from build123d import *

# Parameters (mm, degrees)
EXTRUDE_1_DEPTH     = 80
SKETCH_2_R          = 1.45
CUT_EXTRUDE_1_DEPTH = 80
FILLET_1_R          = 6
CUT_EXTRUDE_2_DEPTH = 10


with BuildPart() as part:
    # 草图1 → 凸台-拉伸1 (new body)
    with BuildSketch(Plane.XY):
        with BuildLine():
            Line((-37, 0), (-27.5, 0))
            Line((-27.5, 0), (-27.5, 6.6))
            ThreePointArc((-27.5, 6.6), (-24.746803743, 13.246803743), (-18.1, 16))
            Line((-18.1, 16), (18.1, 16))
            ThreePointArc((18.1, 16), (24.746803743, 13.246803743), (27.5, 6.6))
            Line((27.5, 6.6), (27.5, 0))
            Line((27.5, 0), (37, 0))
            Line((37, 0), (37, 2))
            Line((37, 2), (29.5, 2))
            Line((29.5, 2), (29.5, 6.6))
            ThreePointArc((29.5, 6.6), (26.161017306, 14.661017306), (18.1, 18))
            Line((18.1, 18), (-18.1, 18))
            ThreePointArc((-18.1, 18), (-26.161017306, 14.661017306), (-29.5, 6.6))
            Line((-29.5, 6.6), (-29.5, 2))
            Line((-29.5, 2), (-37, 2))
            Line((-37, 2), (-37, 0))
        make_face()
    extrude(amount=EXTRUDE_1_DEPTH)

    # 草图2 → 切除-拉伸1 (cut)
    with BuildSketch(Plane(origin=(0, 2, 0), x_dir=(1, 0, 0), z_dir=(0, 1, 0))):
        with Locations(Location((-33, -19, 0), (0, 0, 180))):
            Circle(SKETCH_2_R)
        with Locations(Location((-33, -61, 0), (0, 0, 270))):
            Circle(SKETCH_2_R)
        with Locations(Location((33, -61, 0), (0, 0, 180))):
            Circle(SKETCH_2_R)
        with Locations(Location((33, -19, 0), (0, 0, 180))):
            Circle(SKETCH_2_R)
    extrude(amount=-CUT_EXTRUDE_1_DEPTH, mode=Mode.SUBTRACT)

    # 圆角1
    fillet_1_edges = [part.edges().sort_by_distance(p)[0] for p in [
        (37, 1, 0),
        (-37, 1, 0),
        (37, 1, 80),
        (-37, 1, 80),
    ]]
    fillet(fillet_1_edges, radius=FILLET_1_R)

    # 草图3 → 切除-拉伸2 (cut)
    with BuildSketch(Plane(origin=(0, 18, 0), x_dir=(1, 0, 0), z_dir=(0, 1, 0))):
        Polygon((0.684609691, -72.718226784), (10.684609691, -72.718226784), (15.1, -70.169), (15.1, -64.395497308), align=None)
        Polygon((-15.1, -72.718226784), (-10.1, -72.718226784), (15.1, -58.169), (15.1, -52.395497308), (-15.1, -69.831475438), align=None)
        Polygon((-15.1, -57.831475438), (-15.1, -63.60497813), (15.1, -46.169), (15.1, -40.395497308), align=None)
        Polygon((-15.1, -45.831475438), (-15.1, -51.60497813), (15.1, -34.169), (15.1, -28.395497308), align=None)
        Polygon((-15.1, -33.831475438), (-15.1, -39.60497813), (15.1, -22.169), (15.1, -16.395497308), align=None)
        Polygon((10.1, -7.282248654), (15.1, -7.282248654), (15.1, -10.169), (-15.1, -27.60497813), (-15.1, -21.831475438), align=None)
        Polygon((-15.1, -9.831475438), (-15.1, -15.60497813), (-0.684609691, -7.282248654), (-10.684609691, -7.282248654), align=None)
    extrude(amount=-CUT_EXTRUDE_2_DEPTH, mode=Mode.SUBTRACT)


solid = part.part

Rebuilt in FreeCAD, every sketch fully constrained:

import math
import FreeCAD as App
import Part
import Sketcher
Q = App.Units.Quantity


def edges_at(feature, points):
    """Names of the edges that pass closest to the given points."""
    edges = feature.Shape.Edges
    near = lambda p: min(range(len(edges)), key=lambda i: edges[i].distToShape(Part.Vertex(*p))[0])
    return sorted({f"Edge{near(p) + 1}" for p in points})

doc = App.newDocument("Part")
params = doc.addObject("Spreadsheet::Sheet", "Params")
for row, (alias, value) in enumerate([
    ("sketch1_radius", "9.4 mm"),
    ("sketch1_radius2", "11.4 mm"),
    ("sketch1_height", "2 mm"),
    ("sketch1_width", "9.5 mm"),
    ("sketch1_width2", "36.2 mm"),
    ("pad1_length", "80 mm"),
    ("sketch2_diameter", "2.9 mm"),
    ("pocket1_length", "80 mm"),
    ("fillet_radius", "6 mm"),
    ("sketch3_width", "10 mm"),
    ("sketch3_width2", "5 mm"),
    ("pocket2_length", "10 mm"),
], start=1):
    params.set(f"A{row}", alias)
    params.set(f"B{row}", "=" + value)
    params.setAlias(f"B{row}", alias)

body = doc.addObject("PartDesign::Body", "Body")

sketch1 = body.newObject("Sketcher::SketchObject", "Sketch")
sketch1.AttachmentSupport = (doc.getObject("XY_Plane"), [""])
sketch1.MapMode = "FlatFace"
sketch1.addGeometry([
    Part.LineSegment(App.Vector(-37, 0, 0), App.Vector(-27.5, 0, 0)),
    Part.LineSegment(App.Vector(-27.5, 0, 0), App.Vector(-27.5, 6.6, 0)),
    Part.ArcOfCircle(Part.Circle(App.Vector(-18.1, 6.6, 0), App.Vector(0, 0, 1), 9.4), math.radians(90), math.radians(180)),
    Part.LineSegment(App.Vector(-18.1, 16, 0), App.Vector(18.1, 16, 0)),
    Part.ArcOfCircle(Part.Circle(App.Vector(18.1, 6.6, 0), App.Vector(0, 0, 1), 9.4), math.radians(0), math.radians(90)),
    Part.LineSegment(App.Vector(27.5, 6.6, 0), App.Vector(27.5, 0, 0)),
    Part.LineSegment(App.Vector(27.5, 0, 0), App.Vector(37, 0, 0)),
    Part.LineSegment(App.Vector(37, 0, 0), App.Vector(37, 2, 0)),
    Part.LineSegment(App.Vector(37, 2, 0), App.Vector(29.5, 2, 0)),
    Part.LineSegment(App.Vector(29.5, 2, 0), App.Vector(29.5, 6.6, 0)),
    Part.ArcOfCircle(Part.Circle(App.Vector(18.1, 6.6, 0), App.Vector(0, 0, 1), 11.4), math.radians(0), math.radians(90)),
    Part.LineSegment(App.Vector(18.1, 18, 0), App.Vector(-18.1, 18, 0)),
    Part.ArcOfCircle(Part.Circle(App.Vector(-18.1, 6.6, 0), App.Vector(0, 0, 1), 11.4), math.radians(90), math.radians(180)),
    Part.LineSegment(App.Vector(-29.5, 6.6, 0), App.Vector(-29.5, 2, 0)),
    Part.LineSegment(App.Vector(-29.5, 2, 0), App.Vector(-37, 2, 0)),
    Part.LineSegment(App.Vector(-37, 2, 0), App.Vector(-37, 0, 0)),
], False)
sketch1.addConstraint([
    Sketcher.Constraint("Coincident", 0, 2, 1, 1),
    Sketcher.Constraint("Tangent", 1, 2, 2, 2),
    Sketcher.Constraint("Tangent", 2, 1, 3, 1),
    Sketcher.Constraint("Tangent", 3, 2, 4, 2),
    Sketcher.Constraint("Tangent", 4, 1, 5, 1),
    Sketcher.Constraint("Coincident", 5, 2, 6, 1),
    Sketcher.Constraint("Coincident", 6, 2, 7, 1),
    Sketcher.Constraint("Coincident", 7, 2, 8, 1),
    Sketcher.Constraint("Coincident", 8, 2, 9, 1),
    Sketcher.Constraint("Tangent", 9, 2, 10, 1),
    Sketcher.Constraint("Tangent", 10, 2, 11, 1),
    Sketcher.Constraint("Tangent", 11, 2, 12, 1),
    Sketcher.Constraint("Tangent", 12, 2, 13, 1),
    Sketcher.Constraint("Coincident", 13, 2, 14, 1),
    Sketcher.Constraint("Coincident", 14, 2, 15, 1),
    Sketcher.Constraint("Coincident", 15, 2, 0, 1),
    Sketcher.Constraint("Horizontal", 0),
    Sketcher.Constraint("Vertical", 1),
    Sketcher.Constraint("Horizontal", 3),
    Sketcher.Constraint("Vertical", 5),
    Sketcher.Constraint("Horizontal", 6),
    Sketcher.Constraint("Vertical", 7),
    Sketcher.Constraint("Horizontal", 8),
    Sketcher.Constraint("Vertical", 9),
    Sketcher.Constraint("Horizontal", 11),
    Sketcher.Constraint("Vertical", 13),
    Sketcher.Constraint("Horizontal", 14),
    Sketcher.Constraint("Vertical", 15),
    Sketcher.Constraint("Coincident", 10, 3, 4, 3),
    Sketcher.Constraint("Coincident", 12, 3, 2, 3),
    Sketcher.Constraint("Equal", 2, 4),
    Sketcher.Constraint("Symmetric", 0, 2, 5, 2, -1, 1),
    Sketcher.Constraint("Symmetric", 7, 2, 14, 2, -2),
    Sketcher.Constraint("PointOnObject", 0, 2, -1),
    Sketcher.Constraint("Radius", 2, 9.4),
    Sketcher.Constraint("Radius", 10, 11.4),
    Sketcher.Constraint("DistanceY", 7, 1, 7, 2, 2.0),
    Sketcher.Constraint("DistanceX", 0, 1, 0, 2, 9.5),
    Sketcher.Constraint("DistanceX", 3, 1, 3, 2, 36.2),
    Sketcher.Constraint("DistanceY", 1, 1, 1, 2, 6.6),
])
sketch1.setExpression("Constraints[34]", "Params.sketch1_radius")
sketch1.setExpression("Constraints[35]", "Params.sketch1_radius2")
sketch1.setExpression("Constraints[36]", "Params.sketch1_height")
sketch1.setExpression("Constraints[37]", "Params.sketch1_width")
sketch1.setExpression("Constraints[38]", "Params.sketch1_width2")
pad1 = body.newObject("PartDesign::Pad", "Pad")
pad1.Profile = sketch1
pad1.setExpression("Length", "Params.pad1_length")

sketch2 = body.newObject("Sketcher::SketchObject", "Sketch001")
sketch2.AttachmentSupport = (doc.getObject("XZ_Plane"), [""])
sketch2.MapMode = "FlatFace"
sketch2.AttachmentOffset = App.Placement(App.Vector(0, 0, -2), App.Rotation())
sketch2.addGeometry([
    Part.Circle(App.Vector(-33, 19, 0), App.Vector(0, 0, 1), 1.4),
    Part.Circle(App.Vector(-33, 61, 0), App.Vector(0, 0, 1), 1.4),
    Part.Circle(App.Vector(33, 61, 0), App.Vector(0, 0, 1), 1.4),
    Part.Circle(App.Vector(33, 19, 0), App.Vector(0, 0, 1), 1.4),
], False)
sketch2.addConstraint([
    Sketcher.Constraint("Equal", 0, 1),
    Sketcher.Constraint("Equal", 1, 2),
    Sketcher.Constraint("Equal", 2, 3),
    Sketcher.Constraint("Symmetric", 1, 3, 2, 3, -2),
    Sketcher.Constraint("Symmetric", 0, 3, 3, 3, -2),
    Sketcher.Constraint("Vertical", 0, 3, 1, 3),
    Sketcher.Constraint("Diameter", 0, 2.9),
    Sketcher.Constraint("DistanceX", 0, 3, -1, 1, 33.0),
    Sketcher.Constraint("DistanceY", -1, 1, 0, 3, 19.0),
    Sketcher.Constraint("DistanceY", -1, 1, 1, 3, 61.0),
])
sketch2.setExpression("Constraints[6]", "Params.sketch2_diameter")
pocket1 = body.newObject("PartDesign::Pocket", "Pocket")
pocket1.Profile = sketch2
pocket1.setExpression("Length", "Params.pocket1_length")
pocket1.Reversed = True
doc.recompute()

fillet = body.newObject("PartDesign::Fillet", "Fillet")
fillet.Base = (pocket1, edges_at(pocket1, [
    (37, 1, 0),
    (-37, 1, 0),
    (37, 1, 80),
    (-37, 1, 80),
]))
fillet.setExpression("Radius", "Params.fillet_radius")

sketch3 = body.newObject("Sketcher::SketchObject", "Sketch002")
sketch3.AttachmentSupport = (doc.getObject("XZ_Plane"), [""])
sketch3.MapMode = "FlatFace"
sketch3.AttachmentOffset = App.Placement(App.Vector(0, 0, -18), App.Rotation())
sketch3.addGeometry([
    Part.LineSegment(App.Vector(0.7, 72.7, 0), App.Vector(10.7, 72.7, 0)),
    Part.LineSegment(App.Vector(10.7, 72.7, 0), App.Vector(15.1, 70.2, 0)),
    Part.LineSegment(App.Vector(15.1, 70.2, 0), App.Vector(15.1, 64.4, 0)),
    Part.LineSegment(App.Vector(15.1, 64.4, 0), App.Vector(0.7, 72.7, 0)),
    Part.LineSegment(App.Vector(-15.1, 72.7, 0), App.Vector(-10.1, 72.7, 0)),
    Part.LineSegment(App.Vector(-10.1, 72.7, 0), App.Vector(15.1, 58.2, 0)),
    Part.LineSegment(App.Vector(15.1, 58.2, 0), App.Vector(15.1, 52.4, 0)),
    Part.LineSegment(App.Vector(15.1, 52.4, 0), App.Vector(-15.1, 69.8, 0)),
    Part.LineSegment(App.Vector(-15.1, 69.8, 0), App.Vector(-15.1, 72.7, 0)),
    Part.LineSegment(App.Vector(-15.1, 57.8, 0), App.Vector(-15.1, 63.6, 0)),
    Part.LineSegment(App.Vector(-15.1, 63.6, 0), App.Vector(15.1, 46.2, 0)),
    Part.LineSegment(App.Vector(15.1, 46.2, 0), App.Vector(15.1, 40.4, 0)),
    Part.LineSegment(App.Vector(15.1, 40.4, 0), App.Vector(-15.1, 57.8, 0)),
    Part.LineSegment(App.Vector(-15.1, 45.8, 0), App.Vector(-15.1, 51.6, 0)),
    Part.LineSegment(App.Vector(-15.1, 51.6, 0), App.Vector(15.1, 34.2, 0)),
    Part.LineSegment(App.Vector(15.1, 34.2, 0), App.Vector(15.1, 28.4, 0)),
    Part.LineSegment(App.Vector(15.1, 28.4, 0), App.Vector(-15.1, 45.8, 0)),
    Part.LineSegment(App.Vector(-15.1, 33.8, 0), App.Vector(-15.1, 39.6, 0)),
    Part.LineSegment(App.Vector(-15.1, 39.6, 0), App.Vector(15.1, 22.2, 0)),
    Part.LineSegment(App.Vector(15.1, 22.2, 0), App.Vector(15.1, 16.4, 0)),
    Part.LineSegment(App.Vector(15.1, 16.4, 0), App.Vector(-15.1, 33.8, 0)),
    Part.LineSegment(App.Vector(15.1, 7.3, 0), App.Vector(10.1, 7.3, 0)),
    Part.LineSegment(App.Vector(10.1, 7.3, 0), App.Vector(-15.1, 21.8, 0)),
    Part.LineSegment(App.Vector(-15.1, 21.8, 0), App.Vector(-15.1, 27.6, 0)),
    Part.LineSegment(App.Vector(-15.1, 27.6, 0), App.Vector(15.1, 10.2, 0)),
    Part.LineSegment(App.Vector(15.1, 10.2, 0), App.Vector(15.1, 7.3, 0)),
    Part.LineSegment(App.Vector(-15.1, 9.8, 0), App.Vector(-15.1, 15.6, 0)),
    Part.LineSegment(App.Vector(-15.1, 15.6, 0), App.Vector(-0.7, 7.3, 0)),
    Part.LineSegment(App.Vector(-0.7, 7.3, 0), App.Vector(-10.7, 7.3, 0)),
    Part.LineSegment(App.Vector(-10.7, 7.3, 0), App.Vector(-15.1, 9.8, 0)),
], False)
sketch3.addConstraint([
    Sketcher.Constraint("Coincident", 0, 2, 1, 1),
    Sketcher.Constraint("Coincident", 1, 2, 2, 1),
    Sketcher.Constraint("Coincident", 2, 2, 3, 1),
    Sketcher.Constraint("Coincident", 3, 2, 0, 1),
    Sketcher.Constraint("Coincident", 4, 2, 5, 1),
    Sketcher.Constraint("Coincident", 5, 2, 6, 1),
    Sketcher.Constraint("Coincident", 6, 2, 7, 1),
    Sketcher.Constraint("Coincident", 7, 2, 8, 1),
    Sketcher.Constraint("Coincident", 8, 2, 4, 1),
    Sketcher.Constraint("Coincident", 9, 2, 10, 1),
    Sketcher.Constraint("Coincident", 10, 2, 11, 1),
    Sketcher.Constraint("Coincident", 11, 2, 12, 1),
    Sketcher.Constraint("Coincident", 12, 2, 9, 1),
    Sketcher.Constraint("Coincident", 13, 2, 14, 1),
    Sketcher.Constraint("Coincident", 14, 2, 15, 1),
    Sketcher.Constraint("Coincident", 15, 2, 16, 1),
    Sketcher.Constraint("Coincident", 16, 2, 13, 1),
    Sketcher.Constraint("Coincident", 17, 2, 18, 1),
    Sketcher.Constraint("Coincident", 18, 2, 19, 1),
    Sketcher.Constraint("Coincident", 19, 2, 20, 1),
    Sketcher.Constraint("Coincident", 20, 2, 17, 1),
    Sketcher.Constraint("Coincident", 21, 2, 22, 1),
    Sketcher.Constraint("Coincident", 22, 2, 23, 1),
    Sketcher.Constraint("Coincident", 23, 2, 24, 1),
    Sketcher.Constraint("Coincident", 24, 2, 25, 1),
    Sketcher.Constraint("Coincident", 25, 2, 21, 1),
    Sketcher.Constraint("Coincident", 26, 2, 27, 1),
    Sketcher.Constraint("Coincident", 27, 2, 28, 1),
    Sketcher.Constraint("Coincident", 28, 2, 29, 1),
    Sketcher.Constraint("Coincident", 29, 2, 26, 1),
    Sketcher.Constraint("Horizontal", 0),
    Sketcher.Constraint("Vertical", 2),
    Sketcher.Constraint("Horizontal", 4),
    Sketcher.Constraint("Vertical", 6),
    Sketcher.Constraint("Vertical", 8),
    Sketcher.Constraint("Vertical", 9),
    Sketcher.Constraint("Vertical", 11),
    Sketcher.Constraint("Vertical", 13),
    Sketcher.Constraint("Vertical", 15),
    Sketcher.Constraint("Vertical", 17),
    Sketcher.Constraint("Vertical", 19),
    Sketcher.Constraint("Horizontal", 21),
    Sketcher.Constraint("Vertical", 23),
    Sketcher.Constraint("Vertical", 25),
    Sketcher.Constraint("Vertical", 26),
    Sketcher.Constraint("Horizontal", 28),
    Sketcher.Constraint("Parallel", 1, 3),
    Sketcher.Constraint("Parallel", 3, 5),
    Sketcher.Constraint("Parallel", 5, 7),
    Sketcher.Constraint("Parallel", 7, 10),
    Sketcher.Constraint("Parallel", 10, 12),
    Sketcher.Constraint("Parallel", 12, 14),
    Sketcher.Constraint("Parallel", 14, 16),
    Sketcher.Constraint("Parallel", 16, 18),
    Sketcher.Constraint("Parallel", 18, 20),
    Sketcher.Constraint("Parallel", 20, 22),
    Sketcher.Constraint("Parallel", 22, 24),
    Sketcher.Constraint("Parallel", 24, 27),
    Sketcher.Constraint("Parallel", 27, 29),
    Sketcher.Constraint("Horizontal", 3, 2, 4, 2),
    Sketcher.Constraint("Horizontal", 25, 2, 27, 2),
    Sketcher.Constraint("Vertical", 2, 2, 5, 2),
    Sketcher.Constraint("Vertical", 8, 2, 9, 2),
    Sketcher.Constraint("Vertical", 6, 2, 10, 2),
    Sketcher.Constraint("Vertical", 12, 2, 13, 2),
    Sketcher.Constraint("Vertical", 11, 2, 14, 2),
    Sketcher.Constraint("Vertical", 16, 2, 17, 2),
    Sketcher.Constraint("Vertical", 15, 2, 18, 2),
    Sketcher.Constraint("Vertical", 20, 2, 22, 2),
    Sketcher.Constraint("Vertical", 19, 2, 24, 2),
    Sketcher.Constraint("Vertical", 23, 2, 26, 2),
    Sketcher.Constraint("Equal", 4, 21),
    Sketcher.Constraint("Equal", 0, 28),
    Sketcher.Constraint("Equal", 2, 6),
    Sketcher.Constraint("Equal", 6, 9),
    Sketcher.Constraint("Equal", 11, 13),
    Sketcher.Constraint("Equal", 15, 17),
    Sketcher.Constraint("Equal", 19, 23),
    Sketcher.Constraint("Equal", 3, 27),
    Sketcher.Constraint("DistanceX", 0, 1, 0, 2, 10.0),
    Sketcher.Constraint("DistanceX", 4, 1, 4, 2, 5.0),
    Sketcher.Constraint("Angle", 1, Q("-30 deg")),
    Sketcher.Constraint("DistanceY", 5, 2, 1, 2, 12.0),
    Sketcher.Constraint("DistanceY", 10, 2, 5, 2, 12.0),
    Sketcher.Constraint("DistanceY", 13, 2, 9, 2, 12.0),
    Sketcher.Constraint("DistanceY", 17, 2, 13, 2, 12.0),
    Sketcher.Constraint("DistanceY", 22, 2, 20, 2, 12.0),
    Sketcher.Constraint("DistanceX", -1, 1, 1, 2, 15.1),
    Sketcher.Constraint("DistanceX", 4, 2, -1, 1, 10.1),
    Sketcher.Constraint("DistanceY", -1, 1, 1, 2, 70.169),
])
sketch3.setExpression("Constraints[79]", "Params.sketch3_width")
sketch3.setExpression("Constraints[80]", "Params.sketch3_width2")
pocket2 = body.newObject("PartDesign::Pocket", "Pocket001")
pocket2.Profile = sketch3
pocket2.setExpression("Length", "Params.pocket2_length")
pocket2.Reversed = True

doc.recompute()
